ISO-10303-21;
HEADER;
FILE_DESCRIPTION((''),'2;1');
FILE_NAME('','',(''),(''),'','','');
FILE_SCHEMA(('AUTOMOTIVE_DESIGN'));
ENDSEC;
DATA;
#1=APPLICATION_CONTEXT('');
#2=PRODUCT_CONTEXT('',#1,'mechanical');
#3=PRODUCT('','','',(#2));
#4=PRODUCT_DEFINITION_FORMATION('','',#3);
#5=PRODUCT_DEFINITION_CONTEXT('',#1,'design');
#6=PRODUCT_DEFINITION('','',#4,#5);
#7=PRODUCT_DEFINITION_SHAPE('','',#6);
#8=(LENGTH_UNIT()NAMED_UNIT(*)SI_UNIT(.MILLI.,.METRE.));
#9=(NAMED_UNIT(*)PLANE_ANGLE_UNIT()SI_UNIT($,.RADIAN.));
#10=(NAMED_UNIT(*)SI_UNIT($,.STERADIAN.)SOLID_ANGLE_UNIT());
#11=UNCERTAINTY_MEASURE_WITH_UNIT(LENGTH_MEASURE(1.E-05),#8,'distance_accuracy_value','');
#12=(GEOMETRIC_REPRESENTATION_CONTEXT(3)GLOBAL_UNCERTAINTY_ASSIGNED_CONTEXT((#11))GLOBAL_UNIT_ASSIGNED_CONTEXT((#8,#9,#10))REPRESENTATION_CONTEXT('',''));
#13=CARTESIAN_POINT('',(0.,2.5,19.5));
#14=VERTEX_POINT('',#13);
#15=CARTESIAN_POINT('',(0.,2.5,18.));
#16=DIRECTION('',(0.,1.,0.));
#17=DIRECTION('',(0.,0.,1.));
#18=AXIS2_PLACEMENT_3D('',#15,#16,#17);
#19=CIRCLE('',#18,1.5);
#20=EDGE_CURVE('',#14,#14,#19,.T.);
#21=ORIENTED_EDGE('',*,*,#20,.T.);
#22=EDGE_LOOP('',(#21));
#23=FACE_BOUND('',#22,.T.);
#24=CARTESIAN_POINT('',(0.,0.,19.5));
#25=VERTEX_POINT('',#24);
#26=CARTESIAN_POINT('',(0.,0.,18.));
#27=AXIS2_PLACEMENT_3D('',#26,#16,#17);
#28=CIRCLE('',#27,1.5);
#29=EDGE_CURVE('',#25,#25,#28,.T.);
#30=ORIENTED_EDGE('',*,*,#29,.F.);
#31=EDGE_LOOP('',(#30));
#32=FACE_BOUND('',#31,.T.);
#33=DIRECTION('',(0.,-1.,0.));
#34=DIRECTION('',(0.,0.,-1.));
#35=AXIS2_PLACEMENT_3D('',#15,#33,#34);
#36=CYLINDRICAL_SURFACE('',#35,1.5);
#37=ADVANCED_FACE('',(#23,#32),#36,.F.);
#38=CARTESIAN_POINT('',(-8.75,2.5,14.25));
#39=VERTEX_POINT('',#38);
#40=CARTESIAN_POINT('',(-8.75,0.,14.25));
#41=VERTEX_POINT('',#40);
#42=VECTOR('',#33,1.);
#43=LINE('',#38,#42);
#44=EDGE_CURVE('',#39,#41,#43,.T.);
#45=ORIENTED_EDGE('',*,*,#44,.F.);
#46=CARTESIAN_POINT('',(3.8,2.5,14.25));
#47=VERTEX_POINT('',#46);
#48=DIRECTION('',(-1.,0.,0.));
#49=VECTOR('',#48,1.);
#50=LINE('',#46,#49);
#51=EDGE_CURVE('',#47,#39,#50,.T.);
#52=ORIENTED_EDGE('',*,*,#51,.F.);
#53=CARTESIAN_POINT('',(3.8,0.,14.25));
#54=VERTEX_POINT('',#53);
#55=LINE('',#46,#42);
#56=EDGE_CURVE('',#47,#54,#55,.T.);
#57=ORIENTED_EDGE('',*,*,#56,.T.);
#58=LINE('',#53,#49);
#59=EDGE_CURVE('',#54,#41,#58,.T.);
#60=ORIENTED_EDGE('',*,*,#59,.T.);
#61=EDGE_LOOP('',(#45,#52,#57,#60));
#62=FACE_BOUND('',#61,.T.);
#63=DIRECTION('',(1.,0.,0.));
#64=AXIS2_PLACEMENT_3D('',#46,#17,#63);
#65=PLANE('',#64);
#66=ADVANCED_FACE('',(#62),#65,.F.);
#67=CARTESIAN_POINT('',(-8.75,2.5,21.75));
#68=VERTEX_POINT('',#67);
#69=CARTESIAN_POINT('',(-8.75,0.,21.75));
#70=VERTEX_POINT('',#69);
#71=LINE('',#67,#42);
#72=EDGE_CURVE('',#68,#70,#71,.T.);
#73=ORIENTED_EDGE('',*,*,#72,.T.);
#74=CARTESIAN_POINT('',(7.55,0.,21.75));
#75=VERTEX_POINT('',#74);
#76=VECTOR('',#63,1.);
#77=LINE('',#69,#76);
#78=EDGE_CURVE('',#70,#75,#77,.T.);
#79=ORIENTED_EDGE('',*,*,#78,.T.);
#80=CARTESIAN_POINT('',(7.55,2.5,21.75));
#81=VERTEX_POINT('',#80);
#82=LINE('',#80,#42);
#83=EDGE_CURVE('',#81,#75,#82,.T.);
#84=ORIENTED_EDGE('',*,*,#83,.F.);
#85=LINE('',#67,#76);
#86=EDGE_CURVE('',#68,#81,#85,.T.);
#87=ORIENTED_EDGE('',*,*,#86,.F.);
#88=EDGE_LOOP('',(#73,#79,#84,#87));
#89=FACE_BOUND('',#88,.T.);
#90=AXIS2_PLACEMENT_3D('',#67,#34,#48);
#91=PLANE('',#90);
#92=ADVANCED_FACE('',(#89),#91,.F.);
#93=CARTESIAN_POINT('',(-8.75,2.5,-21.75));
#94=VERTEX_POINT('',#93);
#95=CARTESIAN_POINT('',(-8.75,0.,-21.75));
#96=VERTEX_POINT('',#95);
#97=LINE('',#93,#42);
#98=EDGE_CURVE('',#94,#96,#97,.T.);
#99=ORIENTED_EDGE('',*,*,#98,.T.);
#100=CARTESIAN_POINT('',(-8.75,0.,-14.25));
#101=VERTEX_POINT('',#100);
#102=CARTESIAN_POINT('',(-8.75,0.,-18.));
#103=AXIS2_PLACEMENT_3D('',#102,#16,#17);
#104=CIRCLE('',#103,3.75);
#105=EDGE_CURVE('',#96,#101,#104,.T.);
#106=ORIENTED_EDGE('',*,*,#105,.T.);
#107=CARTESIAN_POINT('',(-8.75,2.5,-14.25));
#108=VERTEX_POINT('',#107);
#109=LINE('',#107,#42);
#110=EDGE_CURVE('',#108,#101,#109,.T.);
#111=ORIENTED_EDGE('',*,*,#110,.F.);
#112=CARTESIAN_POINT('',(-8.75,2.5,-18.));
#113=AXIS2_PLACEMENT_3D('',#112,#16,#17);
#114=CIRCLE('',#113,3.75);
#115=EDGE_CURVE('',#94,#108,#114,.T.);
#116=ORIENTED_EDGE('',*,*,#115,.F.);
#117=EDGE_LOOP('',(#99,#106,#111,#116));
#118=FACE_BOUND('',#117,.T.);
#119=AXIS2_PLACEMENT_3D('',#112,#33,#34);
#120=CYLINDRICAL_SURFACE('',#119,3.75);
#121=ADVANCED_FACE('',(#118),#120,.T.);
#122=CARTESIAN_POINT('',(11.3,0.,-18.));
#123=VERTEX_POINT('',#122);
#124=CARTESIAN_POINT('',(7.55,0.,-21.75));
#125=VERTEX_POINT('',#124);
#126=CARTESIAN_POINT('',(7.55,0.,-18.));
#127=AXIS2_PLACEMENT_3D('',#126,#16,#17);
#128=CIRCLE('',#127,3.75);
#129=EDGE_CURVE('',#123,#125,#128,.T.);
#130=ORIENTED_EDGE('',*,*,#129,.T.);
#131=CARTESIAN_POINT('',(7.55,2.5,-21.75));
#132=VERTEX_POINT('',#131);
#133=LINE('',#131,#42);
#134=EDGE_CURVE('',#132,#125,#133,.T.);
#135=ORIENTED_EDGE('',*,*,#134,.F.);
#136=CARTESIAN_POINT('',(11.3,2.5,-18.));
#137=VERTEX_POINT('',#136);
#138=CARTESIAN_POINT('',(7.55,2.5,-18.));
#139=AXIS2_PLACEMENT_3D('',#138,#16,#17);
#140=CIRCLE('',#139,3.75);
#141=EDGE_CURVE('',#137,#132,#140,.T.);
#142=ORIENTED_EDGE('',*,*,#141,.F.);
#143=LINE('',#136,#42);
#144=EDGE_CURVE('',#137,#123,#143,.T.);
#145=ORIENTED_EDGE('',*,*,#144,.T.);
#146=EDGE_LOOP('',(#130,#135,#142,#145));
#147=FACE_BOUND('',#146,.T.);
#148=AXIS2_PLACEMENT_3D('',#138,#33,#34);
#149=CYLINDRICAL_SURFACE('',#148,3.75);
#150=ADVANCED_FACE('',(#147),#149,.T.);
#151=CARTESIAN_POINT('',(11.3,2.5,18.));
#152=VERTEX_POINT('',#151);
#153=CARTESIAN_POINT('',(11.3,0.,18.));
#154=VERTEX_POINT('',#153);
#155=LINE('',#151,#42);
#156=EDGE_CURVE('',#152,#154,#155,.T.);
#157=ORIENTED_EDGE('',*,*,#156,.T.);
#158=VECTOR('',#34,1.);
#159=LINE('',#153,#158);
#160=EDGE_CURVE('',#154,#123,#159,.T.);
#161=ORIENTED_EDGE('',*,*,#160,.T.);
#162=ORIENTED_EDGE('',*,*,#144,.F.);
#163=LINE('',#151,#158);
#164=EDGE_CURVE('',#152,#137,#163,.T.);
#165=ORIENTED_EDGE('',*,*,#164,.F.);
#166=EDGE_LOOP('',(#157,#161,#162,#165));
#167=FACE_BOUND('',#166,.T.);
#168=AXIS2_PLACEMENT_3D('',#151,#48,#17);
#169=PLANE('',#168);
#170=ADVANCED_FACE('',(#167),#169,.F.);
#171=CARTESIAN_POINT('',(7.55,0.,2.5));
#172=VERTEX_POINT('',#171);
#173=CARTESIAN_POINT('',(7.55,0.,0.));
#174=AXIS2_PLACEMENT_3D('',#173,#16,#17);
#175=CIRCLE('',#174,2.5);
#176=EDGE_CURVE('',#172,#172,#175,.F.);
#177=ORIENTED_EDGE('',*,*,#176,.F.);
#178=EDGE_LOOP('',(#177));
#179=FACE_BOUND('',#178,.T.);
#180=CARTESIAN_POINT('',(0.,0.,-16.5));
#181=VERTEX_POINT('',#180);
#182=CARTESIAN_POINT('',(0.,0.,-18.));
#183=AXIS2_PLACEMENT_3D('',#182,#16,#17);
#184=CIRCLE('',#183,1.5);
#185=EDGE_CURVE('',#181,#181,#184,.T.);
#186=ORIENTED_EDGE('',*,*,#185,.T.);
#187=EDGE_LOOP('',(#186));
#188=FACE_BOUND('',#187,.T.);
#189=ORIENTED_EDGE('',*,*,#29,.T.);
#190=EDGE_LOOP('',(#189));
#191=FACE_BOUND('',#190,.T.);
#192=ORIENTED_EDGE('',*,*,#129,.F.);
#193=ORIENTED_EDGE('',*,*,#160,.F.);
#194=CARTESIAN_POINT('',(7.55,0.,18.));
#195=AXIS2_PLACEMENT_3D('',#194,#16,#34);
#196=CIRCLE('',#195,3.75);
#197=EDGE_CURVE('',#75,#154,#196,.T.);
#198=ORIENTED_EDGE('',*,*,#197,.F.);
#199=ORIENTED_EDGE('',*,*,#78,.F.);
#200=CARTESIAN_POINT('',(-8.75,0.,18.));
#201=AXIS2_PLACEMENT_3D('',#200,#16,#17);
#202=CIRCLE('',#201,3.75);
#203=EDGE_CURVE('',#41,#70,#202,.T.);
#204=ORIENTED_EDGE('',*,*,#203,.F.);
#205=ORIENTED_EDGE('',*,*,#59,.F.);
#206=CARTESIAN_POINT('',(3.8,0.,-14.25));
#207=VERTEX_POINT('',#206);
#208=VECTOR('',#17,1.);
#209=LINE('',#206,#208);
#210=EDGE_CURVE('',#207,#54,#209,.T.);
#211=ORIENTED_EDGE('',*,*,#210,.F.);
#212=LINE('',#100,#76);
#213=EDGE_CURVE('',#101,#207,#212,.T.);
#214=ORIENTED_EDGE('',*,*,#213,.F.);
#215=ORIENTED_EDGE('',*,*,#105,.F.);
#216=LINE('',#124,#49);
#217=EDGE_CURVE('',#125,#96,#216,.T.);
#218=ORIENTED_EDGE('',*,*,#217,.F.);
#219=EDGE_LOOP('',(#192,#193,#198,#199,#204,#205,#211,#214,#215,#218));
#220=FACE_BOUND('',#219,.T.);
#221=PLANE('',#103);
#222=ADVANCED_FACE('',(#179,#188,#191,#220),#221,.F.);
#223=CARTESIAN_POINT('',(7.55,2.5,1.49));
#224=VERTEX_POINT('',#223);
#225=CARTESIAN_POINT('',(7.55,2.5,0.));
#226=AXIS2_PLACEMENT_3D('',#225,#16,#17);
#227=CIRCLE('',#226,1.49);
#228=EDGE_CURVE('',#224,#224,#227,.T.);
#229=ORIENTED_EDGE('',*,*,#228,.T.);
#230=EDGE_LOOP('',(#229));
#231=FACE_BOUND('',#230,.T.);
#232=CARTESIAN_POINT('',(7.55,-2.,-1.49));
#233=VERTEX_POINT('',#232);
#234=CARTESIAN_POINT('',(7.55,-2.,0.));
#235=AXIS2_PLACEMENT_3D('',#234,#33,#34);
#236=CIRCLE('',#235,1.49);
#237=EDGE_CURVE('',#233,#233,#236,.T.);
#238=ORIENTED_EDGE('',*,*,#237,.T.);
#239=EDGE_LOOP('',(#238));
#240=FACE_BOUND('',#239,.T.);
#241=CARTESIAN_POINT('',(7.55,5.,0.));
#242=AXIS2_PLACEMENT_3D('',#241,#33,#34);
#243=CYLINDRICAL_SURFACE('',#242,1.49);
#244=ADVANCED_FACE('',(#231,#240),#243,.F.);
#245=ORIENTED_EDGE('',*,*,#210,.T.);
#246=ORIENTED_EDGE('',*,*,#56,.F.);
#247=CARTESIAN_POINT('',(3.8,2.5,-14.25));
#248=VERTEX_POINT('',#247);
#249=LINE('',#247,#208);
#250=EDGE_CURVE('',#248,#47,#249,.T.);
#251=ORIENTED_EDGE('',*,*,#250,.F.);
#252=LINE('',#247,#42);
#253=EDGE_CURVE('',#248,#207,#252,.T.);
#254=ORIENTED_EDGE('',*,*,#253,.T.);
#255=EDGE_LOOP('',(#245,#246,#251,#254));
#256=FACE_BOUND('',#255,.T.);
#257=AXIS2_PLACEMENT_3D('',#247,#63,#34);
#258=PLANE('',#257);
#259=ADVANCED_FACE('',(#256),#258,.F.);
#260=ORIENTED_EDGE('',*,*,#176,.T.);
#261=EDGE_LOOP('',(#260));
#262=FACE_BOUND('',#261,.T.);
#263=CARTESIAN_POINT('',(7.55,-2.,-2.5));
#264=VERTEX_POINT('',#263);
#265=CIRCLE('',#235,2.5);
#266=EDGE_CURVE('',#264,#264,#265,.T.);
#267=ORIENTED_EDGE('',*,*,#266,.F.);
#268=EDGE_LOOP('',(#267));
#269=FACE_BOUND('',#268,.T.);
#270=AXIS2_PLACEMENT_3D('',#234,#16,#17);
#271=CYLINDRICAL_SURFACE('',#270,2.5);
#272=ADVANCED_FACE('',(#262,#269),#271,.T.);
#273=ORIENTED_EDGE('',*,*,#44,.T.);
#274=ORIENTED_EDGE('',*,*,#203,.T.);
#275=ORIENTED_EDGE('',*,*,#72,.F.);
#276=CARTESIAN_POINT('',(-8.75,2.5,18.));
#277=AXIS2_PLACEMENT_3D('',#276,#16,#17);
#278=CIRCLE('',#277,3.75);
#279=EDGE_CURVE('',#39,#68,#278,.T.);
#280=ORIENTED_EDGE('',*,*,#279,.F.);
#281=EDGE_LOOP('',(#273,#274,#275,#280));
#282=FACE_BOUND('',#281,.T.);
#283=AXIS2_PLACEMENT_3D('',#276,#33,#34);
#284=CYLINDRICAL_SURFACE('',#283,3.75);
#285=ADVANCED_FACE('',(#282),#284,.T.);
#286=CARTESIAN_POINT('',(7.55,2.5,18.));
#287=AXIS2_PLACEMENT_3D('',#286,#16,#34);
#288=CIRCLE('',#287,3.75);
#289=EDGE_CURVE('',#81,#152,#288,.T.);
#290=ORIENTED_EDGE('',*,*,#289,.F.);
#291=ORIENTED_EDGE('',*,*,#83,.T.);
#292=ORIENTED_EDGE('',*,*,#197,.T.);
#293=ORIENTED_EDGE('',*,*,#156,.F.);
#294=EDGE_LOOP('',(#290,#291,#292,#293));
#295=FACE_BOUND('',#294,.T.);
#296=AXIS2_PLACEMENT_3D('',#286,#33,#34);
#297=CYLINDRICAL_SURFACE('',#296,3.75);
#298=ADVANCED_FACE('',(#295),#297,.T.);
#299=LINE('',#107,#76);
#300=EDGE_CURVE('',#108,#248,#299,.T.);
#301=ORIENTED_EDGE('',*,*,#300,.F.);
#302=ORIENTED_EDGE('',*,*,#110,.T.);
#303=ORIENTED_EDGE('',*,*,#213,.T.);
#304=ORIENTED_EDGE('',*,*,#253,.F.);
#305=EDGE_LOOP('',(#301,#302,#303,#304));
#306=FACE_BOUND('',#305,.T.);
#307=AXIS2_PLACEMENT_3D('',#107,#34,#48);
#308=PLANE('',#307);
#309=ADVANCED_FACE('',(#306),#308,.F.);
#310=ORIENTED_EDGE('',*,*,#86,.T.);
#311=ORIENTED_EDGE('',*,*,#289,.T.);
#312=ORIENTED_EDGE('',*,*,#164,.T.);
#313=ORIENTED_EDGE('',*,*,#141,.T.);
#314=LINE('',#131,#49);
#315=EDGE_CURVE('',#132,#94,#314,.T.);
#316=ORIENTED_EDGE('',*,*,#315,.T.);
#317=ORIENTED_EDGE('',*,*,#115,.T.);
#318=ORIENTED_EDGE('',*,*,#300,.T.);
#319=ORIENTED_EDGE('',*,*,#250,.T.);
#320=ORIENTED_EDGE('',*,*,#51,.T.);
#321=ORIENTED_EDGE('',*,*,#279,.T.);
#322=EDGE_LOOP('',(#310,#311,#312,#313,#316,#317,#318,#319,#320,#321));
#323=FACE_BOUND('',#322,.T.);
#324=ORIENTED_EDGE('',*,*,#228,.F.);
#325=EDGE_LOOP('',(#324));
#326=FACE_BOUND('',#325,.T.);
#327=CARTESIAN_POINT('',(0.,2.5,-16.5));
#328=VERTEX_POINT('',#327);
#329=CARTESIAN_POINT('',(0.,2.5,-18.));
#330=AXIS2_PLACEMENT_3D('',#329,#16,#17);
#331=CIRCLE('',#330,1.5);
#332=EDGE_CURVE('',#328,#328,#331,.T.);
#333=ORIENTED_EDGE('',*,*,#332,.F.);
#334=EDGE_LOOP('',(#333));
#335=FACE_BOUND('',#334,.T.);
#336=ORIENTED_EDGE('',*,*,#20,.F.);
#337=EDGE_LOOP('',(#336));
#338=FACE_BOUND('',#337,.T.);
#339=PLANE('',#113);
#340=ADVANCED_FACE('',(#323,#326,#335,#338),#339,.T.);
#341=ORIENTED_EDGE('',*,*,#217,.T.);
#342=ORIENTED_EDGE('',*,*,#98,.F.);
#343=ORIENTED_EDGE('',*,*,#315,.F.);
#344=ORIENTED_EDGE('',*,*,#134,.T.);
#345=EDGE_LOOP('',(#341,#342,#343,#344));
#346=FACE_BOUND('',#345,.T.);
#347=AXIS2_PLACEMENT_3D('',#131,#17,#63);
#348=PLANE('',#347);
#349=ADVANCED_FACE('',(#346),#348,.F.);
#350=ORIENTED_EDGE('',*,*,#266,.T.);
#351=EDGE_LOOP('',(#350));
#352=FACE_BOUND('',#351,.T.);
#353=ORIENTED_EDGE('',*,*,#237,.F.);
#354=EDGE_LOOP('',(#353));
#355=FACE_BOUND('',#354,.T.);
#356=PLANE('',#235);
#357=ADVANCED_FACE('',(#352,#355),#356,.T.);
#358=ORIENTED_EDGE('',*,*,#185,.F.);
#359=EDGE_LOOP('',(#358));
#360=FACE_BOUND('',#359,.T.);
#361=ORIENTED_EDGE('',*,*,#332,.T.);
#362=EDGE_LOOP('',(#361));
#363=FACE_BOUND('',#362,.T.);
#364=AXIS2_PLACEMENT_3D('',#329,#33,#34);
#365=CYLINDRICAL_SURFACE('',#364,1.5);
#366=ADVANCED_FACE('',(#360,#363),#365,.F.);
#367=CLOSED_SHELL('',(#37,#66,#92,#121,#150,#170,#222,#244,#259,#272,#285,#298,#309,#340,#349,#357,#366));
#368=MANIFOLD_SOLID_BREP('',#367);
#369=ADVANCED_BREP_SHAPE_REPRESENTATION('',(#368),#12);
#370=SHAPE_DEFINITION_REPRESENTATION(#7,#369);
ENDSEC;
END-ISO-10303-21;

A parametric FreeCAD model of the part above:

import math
import FreeCAD as App
import Part
import Sketcher

V = App.Vector
Q = App.Units.Quantity

doc = App.newDocument("Part")
body = doc.addObject("PartDesign::Body", "Body")

sketch1 = doc.addObject("Sketcher::SketchObject", "Sketch")
body.addObject(sketch1)
sketch1.AttachmentSupport = (doc.XZ_Plane, [""])
sketch1.MapMode = "FlatFace"
sketch1.addGeometry([
    Part.LineSegment(V(-8.8, -14.2, 0), V(3.8, -14.2, 0)),
    Part.LineSegment(V(3.8, -14.2, 0), V(3.8, 14.2, 0)),
    Part.LineSegment(V(3.8, 14.2, 0), V(-8.8, 14.2, 0)),
    Part.ArcOfCircle(Part.Circle(V(-8.8, 18, 0), V(0, 0, 1), 3.8), math.radians(90), math.radians(270)),
    Part.LineSegment(V(-8.8, 21.8, 0), V(7.5, 21.8, 0)),
    Part.ArcOfCircle(Part.Circle(V(7.5, 18, 0), V(0, 0, 1), 3.8), math.radians(0), math.radians(90)),
    Part.LineSegment(V(11.3, 18, 0), V(11.3, -18, 0)),
    Part.ArcOfCircle(Part.Circle(V(7.5, -18, 0), V(0, 0, 1), 3.8), math.radians(-90), math.radians(0)),
    Part.LineSegment(V(7.5, -21.8, 0), V(-8.8, -21.8, 0)),
    Part.ArcOfCircle(Part.Circle(V(-8.8, -18, 0), V(0, 0, 1), 3.8), math.radians(90), math.radians(270)),
    Part.Circle(V(0, 18, 0), V(0, 0, 1), 1.5),
    Part.Circle(V(0, -18, 0), V(0, 0, 1), 1.5),
], False)
sketch1.addConstraint([
    Sketcher.Constraint("Coincident", 0, 2, 1, 1),
    Sketcher.Constraint("Coincident", 1, 2, 2, 1),
    Sketcher.Constraint("Tangent", 2, 2, 3, 2),
    Sketcher.Constraint("Tangent", 3, 1, 4, 1),
    Sketcher.Constraint("Tangent", 4, 2, 5, 2),
    Sketcher.Constraint("Tangent", 5, 1, 6, 1),
    Sketcher.Constraint("Tangent", 6, 2, 7, 2),
    Sketcher.Constraint("Tangent", 7, 1, 8, 1),
    Sketcher.Constraint("Tangent", 8, 2, 9, 2),
    Sketcher.Constraint("Tangent", 9, 1, 0, 1),
    Sketcher.Constraint("Horizontal", 0),
    Sketcher.Constraint("Vertical", 1),
    Sketcher.Constraint("Horizontal", 2),
    Sketcher.Constraint("Horizontal", 4),
    Sketcher.Constraint("Vertical", 6),
    Sketcher.Constraint("Horizontal", 8),
    Sketcher.Constraint("Equal", 3, 5),
    Sketcher.Constraint("Equal", 5, 7),
    Sketcher.Constraint("Equal", 7, 9),
    Sketcher.Constraint("Equal", 10, 11),
    Sketcher.Constraint("Symmetric", 10, 3, 11, 3, -1, 1),
    Sketcher.Constraint("Symmetric", 3, 3, 9, 3, -1),
    Sketcher.Constraint("PointOnObject", 10, 3, -2),
    Sketcher.Constraint("Horizontal", 5, 3, 10, 3),
    Sketcher.Constraint("Diameter", 10, Q("3 mm")),
    Sketcher.Constraint("DistanceY", 6, 2, 6, 1, Q("36 mm")),
    Sketcher.Constraint("Radius", 3, Q("3.75 mm")),
    Sketcher.Constraint("DistanceX", 4, 1, 4, 2, Q("16.3 mm")),
    Sketcher.Constraint("DistanceX", 0, 1, 0, 2, Q("12.55 mm")),
    Sketcher.Constraint("DistanceX", -1, 1, 0, 2, Q("3.8 mm")),
])
pad1 = doc.addObject("PartDesign::Pad", "Pad")
body.addObject(pad1)
pad1.Profile = sketch1
pad1.Length = 2.5
pad1.Reversed = True

sketch2 = doc.addObject("Sketcher::SketchObject", "Sketch001")
body.addObject(sketch2)
sketch2.AttachmentSupport = (doc.XZ_Plane, [""])
sketch2.MapMode = "FlatFace"
sketch2.addGeometry(Part.Circle(V(7.5, 0, 0), V(0, 0, 1), 2.5), False)
sketch2.addConstraint([
    Sketcher.Constraint("PointOnObject", 0, 3, -1),
    Sketcher.Constraint("Diameter", 0, Q("5 mm")),
    Sketcher.Constraint("DistanceX", -1, 1, 0, 3, Q("7.55 mm")),
])
pad2 = doc.addObject("PartDesign::Pad", "Pad001")
body.addObject(pad2)
pad2.Profile = sketch2
pad2.Length = 2

sketch3 = doc.addObject("Sketcher::SketchObject", "Sketch002")
body.addObject(sketch3)
sketch3.AttachmentSupport = (doc.XZ_Plane, [""])
sketch3.MapMode = "FlatFace"
sketch3.AttachmentOffset = App.Placement(V(0, 0, 2), App.Rotation())
sketch3.addGeometry(Part.Circle(V(7.5, 0, 0), V(0, 0, 1), 1.5), False)
sketch3.addConstraint([
    Sketcher.Constraint("PointOnObject", 0, 3, -1),
    Sketcher.Constraint("Diameter", 0, Q("2.98 mm")),
    Sketcher.Constraint("DistanceX", -1, 1, 0, 3, Q("7.55 mm")),
])
pocket1 = doc.addObject("PartDesign::Pocket", "Pocket")
body.addObject(pocket1)
pocket1.Profile = sketch3
pocket1.Length = 7

doc.recompute()
